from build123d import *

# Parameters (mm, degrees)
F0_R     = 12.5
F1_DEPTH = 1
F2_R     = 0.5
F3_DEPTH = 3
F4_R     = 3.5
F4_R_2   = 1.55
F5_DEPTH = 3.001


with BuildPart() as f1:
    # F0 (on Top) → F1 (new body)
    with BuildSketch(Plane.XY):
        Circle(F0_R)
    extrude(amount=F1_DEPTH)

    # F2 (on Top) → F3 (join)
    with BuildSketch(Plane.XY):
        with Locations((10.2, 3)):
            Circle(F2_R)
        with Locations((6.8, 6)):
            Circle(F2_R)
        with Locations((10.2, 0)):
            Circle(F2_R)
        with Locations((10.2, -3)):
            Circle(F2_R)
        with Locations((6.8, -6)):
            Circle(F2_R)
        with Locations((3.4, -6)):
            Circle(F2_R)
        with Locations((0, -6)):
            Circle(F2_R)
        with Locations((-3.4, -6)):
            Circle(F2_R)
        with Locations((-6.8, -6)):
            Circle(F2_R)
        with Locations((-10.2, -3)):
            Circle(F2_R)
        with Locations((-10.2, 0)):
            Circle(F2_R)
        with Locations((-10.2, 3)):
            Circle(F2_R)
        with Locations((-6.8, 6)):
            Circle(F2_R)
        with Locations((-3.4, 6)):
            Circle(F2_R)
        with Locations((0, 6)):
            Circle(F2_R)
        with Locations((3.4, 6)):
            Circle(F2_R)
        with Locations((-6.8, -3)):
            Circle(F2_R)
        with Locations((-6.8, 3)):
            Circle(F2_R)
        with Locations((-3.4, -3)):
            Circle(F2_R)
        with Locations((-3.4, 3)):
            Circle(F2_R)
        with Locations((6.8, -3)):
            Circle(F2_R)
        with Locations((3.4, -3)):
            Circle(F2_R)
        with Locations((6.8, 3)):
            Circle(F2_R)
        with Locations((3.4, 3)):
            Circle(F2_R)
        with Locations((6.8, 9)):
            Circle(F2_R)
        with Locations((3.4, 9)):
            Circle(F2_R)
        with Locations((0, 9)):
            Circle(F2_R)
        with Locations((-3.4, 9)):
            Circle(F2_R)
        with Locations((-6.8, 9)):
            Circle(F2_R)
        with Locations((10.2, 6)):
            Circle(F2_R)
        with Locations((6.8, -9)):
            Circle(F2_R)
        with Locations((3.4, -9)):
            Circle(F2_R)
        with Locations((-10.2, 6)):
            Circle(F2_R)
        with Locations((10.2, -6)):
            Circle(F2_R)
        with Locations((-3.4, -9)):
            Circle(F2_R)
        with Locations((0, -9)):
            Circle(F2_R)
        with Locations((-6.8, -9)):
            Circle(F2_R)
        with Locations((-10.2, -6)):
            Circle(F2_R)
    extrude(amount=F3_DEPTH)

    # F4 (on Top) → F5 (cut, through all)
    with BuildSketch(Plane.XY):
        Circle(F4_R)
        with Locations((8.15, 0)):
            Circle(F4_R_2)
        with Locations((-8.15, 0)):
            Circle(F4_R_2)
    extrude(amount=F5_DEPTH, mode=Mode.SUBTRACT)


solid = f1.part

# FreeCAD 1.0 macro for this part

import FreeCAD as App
import Part
import Sketcher
from FreeCAD import Vector

doc = App.newDocument("Part")
body = doc.addObject("PartDesign::Body", "Body")

# Sketch on XY plane
sketch1 = body.newObject("Sketcher::SketchObject", "Sketch")
sketch1.AttachmentSupport = (doc.getObject("XY_Plane"), [""])
sketch1.MapMode = "FlatFace"
sketch1.addGeometry(Part.Circle(Vector(0, 0, 0), Vector(0, 0, 1), 12), False)
sketch1.addConstraint([
    Sketcher.Constraint("Coincident", 0, 3, -1, 1),
    Sketcher.Constraint("Diameter", 0, 25.0),
])
pad1 = body.newObject("PartDesign::Pad", "Pad")
pad1.Profile = sketch1
pad1.Length = 1

# Sketch on XY plane
sketch2 = body.newObject("Sketcher::SketchObject", "Sketch001")
sketch2.AttachmentSupport = (doc.getObject("XY_Plane"), [""])
sketch2.MapMode = "FlatFace"
sketch2.addGeometry([
    Part.Circle(Vector(10.2, 3, 0), Vector(0, 0, 1), 0.5),  # 0
    Part.Circle(Vector(6.8, 6, 0), Vector(0, 0, 1), 0.5),  # 1
    Part.Circle(Vector(10.2, 0, 0), Vector(0, 0, 1), 0.5),  # 2
    Part.Circle(Vector(10.2, -3, 0), Vector(0, 0, 1), 0.5),  # 3
    Part.Circle(Vector(6.8, -6, 0), Vector(0, 0, 1), 0.5),  # 4
    Part.Circle(Vector(3.4, -6, 0), Vector(0, 0, 1), 0.5),  # 5
    Part.Circle(Vector(0, -6, 0), Vector(0, 0, 1), 0.5),  # 6
    Part.Circle(Vector(-3.4, -6, 0), Vector(0, 0, 1), 0.5),  # 7
    Part.Circle(Vector(-6.8, -6, 0), Vector(0, 0, 1), 0.5),  # 8
    Part.Circle(Vector(-10.2, -3, 0), Vector(0, 0, 1), 0.5),  # 9
    Part.Circle(Vector(-10.2, 0, 0), Vector(0, 0, 1), 0.5),  # 10
    Part.Circle(Vector(-10.2, 3, 0), Vector(0, 0, 1), 0.5),  # 11
    Part.Circle(Vector(-6.8, 6, 0), Vector(0, 0, 1), 0.5),  # 12
    Part.Circle(Vector(-3.4, 6, 0), Vector(0, 0, 1), 0.5),  # 13
    Part.Circle(Vector(0, 6, 0), Vector(0, 0, 1), 0.5),  # 14
    Part.Circle(Vector(3.4, 6, 0), Vector(0, 0, 1), 0.5),  # 15
    Part.Circle(Vector(-6.8, -3, 0), Vector(0, 0, 1), 0.5),  # 16
    Part.Circle(Vector(-6.8, 3, 0), Vector(0, 0, 1), 0.5),  # 17
    Part.Circle(Vector(-3.4, -3, 0), Vector(0, 0, 1), 0.5),  # 18
    Part.Circle(Vector(-3.4, 3, 0), Vector(0, 0, 1), 0.5),  # 19
    Part.Circle(Vector(6.8, -3, 0), Vector(0, 0, 1), 0.5),  # 20
    Part.Circle(Vector(3.4, -3, 0), Vector(0, 0, 1), 0.5),  # 21
    Part.Circle(Vector(6.8, 3, 0), Vector(0, 0, 1), 0.5),  # 22
    Part.Circle(Vector(3.4, 3, 0), Vector(0, 0, 1), 0.5),  # 23
    Part.Circle(Vector(6.8, 9, 0), Vector(0, 0, 1), 0.5),  # 24
    Part.Circle(Vector(3.4, 9, 0), Vector(0, 0, 1), 0.5),  # 25
    Part.Circle(Vector(0, 9, 0), Vector(0, 0, 1), 0.5),  # 26
    Part.Circle(Vector(-3.4, 9, 0), Vector(0, 0, 1), 0.5),  # 27
    Part.Circle(Vector(-6.8, 9, 0), Vector(0, 0, 1), 0.5),  # 28
    Part.Circle(Vector(10.2, 6, 0), Vector(0, 0, 1), 0.5),  # 29
    Part.Circle(Vector(6.8, -9, 0), Vector(0, 0, 1), 0.5),  # 30
    Part.Circle(Vector(3.4, -9, 0), Vector(0, 0, 1), 0.5),  # 31
    Part.Circle(Vector(-10.2, 6, 0), Vector(0, 0, 1), 0.5),  # 32
    Part.Circle(Vector(10.2, -6, 0), Vector(0, 0, 1), 0.5),  # 33
    Part.Circle(Vector(-3.4, -9, 0), Vector(0, 0, 1), 0.5),  # 34
    Part.Circle(Vector(0, -9, 0), Vector(0, 0, 1), 0.5),  # 35
    Part.Circle(Vector(-6.8, -9, 0), Vector(0, 0, 1), 0.5),  # 36
    Part.Circle(Vector(-10.2, -6, 0), Vector(0, 0, 1), 0.5),  # 37
], False)
sketch2.addConstraint([
    Sketcher.Constraint("Equal", 0, 1),
    Sketcher.Constraint("Equal", 1, 2),
    Sketcher.Constraint("Equal", 2, 3),
    Sketcher.Constraint("Equal", 3, 4),
    Sketcher.Constraint("Equal", 4, 5),
    Sketcher.Constraint("Equal", 5, 6),
    Sketcher.Constraint("Equal", 6, 7),
    Sketcher.Constraint("Equal", 7, 8),
    Sketcher.Constraint("Equal", 8, 9),
    Sketcher.Constraint("Equal", 9, 10),
    Sketcher.Constraint("Equal", 10, 11),
    Sketcher.Constraint("Equal", 11, 12),
    Sketcher.Constraint("Equal", 12, 13),
    Sketcher.Constraint("Equal", 13, 14),
    Sketcher.Constraint("Equal", 14, 15),
    Sketcher.Constraint("Equal", 15, 16),
    Sketcher.Constraint("Equal", 16, 17),
    Sketcher.Constraint("Equal", 17, 18),
    Sketcher.Constraint("Equal", 18, 19),
    Sketcher.Constraint("Equal", 19, 20),
    Sketcher.Constraint("Equal", 20, 21),
    Sketcher.Constraint("Equal", 21, 22),
    Sketcher.Constraint("Equal", 22, 23),
    Sketcher.Constraint("Equal", 23, 24),
    Sketcher.Constraint("Equal", 24, 25),
    Sketcher.Constraint("Equal", 25, 26),
    Sketcher.Constraint("Equal", 26, 27),
    Sketcher.Constraint("Equal", 27, 28),
    Sketcher.Constraint("Equal", 28, 29),
    Sketcher.Constraint("Equal", 29, 30),
    Sketcher.Constraint("Equal", 30, 31),
    Sketcher.Constraint("Equal", 31, 32),
    Sketcher.Constraint("Equal", 32, 33),
    Sketcher.Constraint("Equal", 33, 34),
    Sketcher.Constraint("Equal", 34, 35),
    Sketcher.Constraint("Equal", 35, 36),
    Sketcher.Constraint("Equal", 36, 37),
    Sketcher.Constraint("Symmetric", 1, 3, 8, 3, -1, 1),
    Sketcher.Constraint("Symmetric", 0, 3, 9, 3, -1, 1),
    Sketcher.Constraint("Symmetric", 2, 3, 10, 3, -1, 1),
    Sketcher.Constraint("Symmetric", 3, 3, 11, 3, -1, 1),
    Sketcher.Constraint("Symmetric", 4, 3, 12, 3, -1, 1),
    Sketcher.Constraint("Symmetric", 5, 3, 13, 3, -1, 1),
    Sketcher.Constraint("Symmetric", 6, 3, 14, 3, -1, 1),
    Sketcher.Constraint("Symmetric", 7, 3, 15, 3, -1, 1),
    Sketcher.Constraint("Symmetric", 17, 3, 20, 3, -1, 1),
    Sketcher.Constraint("Symmetric", 19, 3, 21, 3, -1, 1),
    Sketcher.Constraint("Symmetric", 16, 3, 22, 3, -1, 1),
    Sketcher.Constraint("Symmetric", 18, 3, 23, 3, -1, 1),
    Sketcher.Constraint("Symmetric", 28, 3, 30, 3, -1, 1),
    Sketcher.Constraint("Symmetric", 27, 3, 31, 3, -1, 1),
    Sketcher.Constraint("Symmetric", 32, 3, 33, 3, -1, 1),
    Sketcher.Constraint("Symmetric", 25, 3, 34, 3, -1, 1),
    Sketcher.Constraint("Symmetric", 26, 3, 35, 3, -1, 1),
    Sketcher.Constraint("Symmetric", 24, 3, 36, 3, -1, 1),
    Sketcher.Constraint("Symmetric", 29, 3, 37, 3, -1, 1),
    Sketcher.Constraint("Symmetric", 5, 3, 7, 3, -2),
    Sketcher.Constraint("Symmetric", 4, 3, 8, 3, -2),
    Sketcher.Constraint("Symmetric", 3, 3, 9, 3, -2),
    Sketcher.Constraint("Symmetric", 16, 3, 20, 3, -2),
    Sketcher.Constraint("Symmetric", 18, 3, 21, 3, -2),
    Sketcher.Constraint("Symmetric", 25, 3, 27, 3, -2),
    Sketcher.Constraint("Symmetric", 24, 3, 28, 3, -2),
    Sketcher.Constraint("Symmetric", 29, 3, 32, 3, -2),
    Sketcher.Constraint("PointOnObject", 2, 3, -1),
    Sketcher.Constraint("PointOnObject", 6, 3, -2),
    Sketcher.Constraint("PointOnObject", 26, 3, -2),
    Sketcher.Constraint("Horizontal", 4, 3, 5, 3),
    Sketcher.Constraint("Horizontal", 5, 3, 6, 3),
    Sketcher.Constraint("Horizontal", 9, 3, 16, 3),
    Sketcher.Constraint("Horizontal", 16, 3, 18, 3),
    Sketcher.Constraint("Horizontal", 24, 3, 25, 3),
    Sketcher.Constraint("Horizontal", 25, 3, 26, 3),
    Sketcher.Constraint("Horizontal", 15, 3, 29, 3),
    Sketcher.Constraint("Vertical", 0, 3, 2, 3),
    Sketcher.Constraint("Vertical", 12, 3, 16, 3),
    Sketcher.Constraint("Vertical", 13, 3, 18, 3),
    Sketcher.Constraint("Vertical", 22, 3, 24, 3),
    Sketcher.Constraint("Vertical", 23, 3, 25, 3),
    Sketcher.Constraint("Vertical", 3, 3, 29, 3),
    Sketcher.Constraint("Diameter", 0, 1.0),
    Sketcher.Constraint("DistanceY", -1, 1, 0, 3, 3.0),
    Sketcher.Constraint("DistanceY", -1, 1, 1, 3, 6.0),
    Sketcher.Constraint("DistanceY", -1, 1, 24, 3, 9.0),
    Sketcher.Constraint("DistanceX", 8, 3, 3, 3, 17.0),
    Sketcher.Constraint("DistanceX", -1, 1, 0, 3, 10.2),
    Sketcher.Constraint("DistanceX", -1, 1, 5, 3, 3.4),
])
pad2 = body.newObject("PartDesign::Pad", "Pad001")
pad2.Profile = sketch2
pad2.Length = 3

# Sketch on XY plane
sketch3 = body.newObject("Sketcher::SketchObject", "Sketch002")
sketch3.AttachmentSupport = (doc.getObject("XY_Plane"), [""])
sketch3.MapMode = "FlatFace"
sketch3.addGeometry([
    Part.Circle(Vector(0, 0, 0), Vector(0, 0, 1), 3.5),
    Part.Circle(Vector(8.2, 0, 0), Vector(0, 0, 1), 1.6),
    Part.Circle(Vector(-8.2, 0, 0), Vector(0, 0, 1), 1.6),
], False)
sketch3.addConstraint([
    Sketcher.Constraint("Coincident", 0, 3, -1, 1),
    Sketcher.Constraint("Equal", 1, 2),
    Sketcher.Constraint("Symmetric", 1, 3, 2, 3, -1, 1),
    Sketcher.Constraint("PointOnObject", 1, 3, -1),
    Sketcher.Constraint("Diameter", 0, 7.0),
    Sketcher.Constraint("Diameter", 1, 3.1),
    Sketcher.Constraint("DistanceX", 2, 3, 1, 3, 16.3),
])
pocket1 = body.newObject("PartDesign::Pocket", "Pocket")
pocket1.Profile = sketch3
pocket1.Type = "ThroughAll"
pocket1.Reversed = True

doc.recompute()
